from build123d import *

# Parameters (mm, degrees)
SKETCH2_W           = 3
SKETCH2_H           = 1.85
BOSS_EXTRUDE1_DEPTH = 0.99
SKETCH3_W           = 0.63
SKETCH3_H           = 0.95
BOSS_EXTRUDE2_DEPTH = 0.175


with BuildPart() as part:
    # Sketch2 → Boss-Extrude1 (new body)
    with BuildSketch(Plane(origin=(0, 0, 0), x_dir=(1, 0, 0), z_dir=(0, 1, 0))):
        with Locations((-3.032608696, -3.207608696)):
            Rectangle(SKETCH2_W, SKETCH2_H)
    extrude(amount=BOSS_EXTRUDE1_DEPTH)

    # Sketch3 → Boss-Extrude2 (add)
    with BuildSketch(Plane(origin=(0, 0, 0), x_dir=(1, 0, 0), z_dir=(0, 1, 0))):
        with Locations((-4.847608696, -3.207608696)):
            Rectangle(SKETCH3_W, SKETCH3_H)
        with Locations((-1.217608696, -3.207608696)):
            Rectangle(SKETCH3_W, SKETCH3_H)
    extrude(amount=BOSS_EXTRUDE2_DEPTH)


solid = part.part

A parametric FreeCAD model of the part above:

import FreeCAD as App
import Part
import Sketcher

V = App.Vector
Q = App.Units.Quantity


def add_polygon(sketch, points):
    """Adds a closed chain of lines whose ends are joined by coincident constraints."""
    first, n = sketch.GeometryCount, len(points)
    for a, b in zip(points, points[1:] + points[:1]):
        sketch.addGeometry(Part.LineSegment(App.Vector(*a, 0), App.Vector(*b, 0)), False)
    for i in range(n):
        sketch.addConstraint(Sketcher.Constraint("Coincident", first + i, 2, first + (i + 1) % n, 1))

doc = App.newDocument("Part")
params = doc.addObject("Spreadsheet::Sheet", "Params")
for row, (alias, value) in enumerate([
    ("sketch1_width", "3 mm"),
    ("sketch1_height", "1.85 mm"),
    ("pad1_length", "0.99 mm"),
    ("sketch2_width", "0.63 mm"),
    ("sketch2_height", "0.95 mm"),
    ("pad2_length", "0.175 mm"),
], start=1):
    params.set(f"A{row}", alias)
    params.set(f"B{row}", "=" + value)
    params.setAlias(f"B{row}", alias)

body = doc.addObject("PartDesign::Body", "Body")

# Sketch on XZ plane
sketch1 = body.newObject("Sketcher::SketchObject", "Sketch")
sketch1.AttachmentSupport = (doc.getObject("XZ_Plane"), [""])
sketch1.MapMode = "FlatFace"
add_polygon(sketch1, [(-4.5, 2.3), (-4.5, 4.1), (-1.5, 4.1), (-1.5, 2.3)])  # lines 0-3
sketch1.addConstraint([
    Sketcher.Constraint("Vertical", 0),
    Sketcher.Constraint("Horizontal", 1),
    Sketcher.Constraint("Vertical", 2),
    Sketcher.Constraint("Horizontal", 3),
    Sketcher.Constraint("DistanceX", 1, 1, 1, 2, Q("3 mm")),
    Sketcher.Constraint("DistanceY", 0, 1, 0, 2, Q("1.85 mm")),
    Sketcher.Constraint("DistanceX", 0, 2, -1, 1, Q("4.532609 mm")),
    Sketcher.Constraint("DistanceY", -1, 1, 0, 2, Q("4.132609 mm")),
])
sketch1.setExpression("Constraints[8]", "Params.sketch1_width")
sketch1.setExpression("Constraints[9]", "Params.sketch1_height")
pad1 = body.newObject("PartDesign::Pad", "Pad")
pad1.Profile = sketch1
pad1.setExpression("Length", "Params.pad1_length")
pad1.Reversed = True

# Sketch on XZ plane
sketch2 = body.newObject("Sketcher::SketchObject", "Sketch001")
sketch2.AttachmentSupport = (doc.getObject("XZ_Plane"), [""])
sketch2.MapMode = "FlatFace"
add_polygon(sketch2, [(-5.2, 2.7), (-5.2, 3.7), (-4.5, 3.7), (-4.5, 2.7)])  # lines 0-3
add_polygon(sketch2, [(-1.5, 2.7), (-1.5, 3.7), (-0.9, 3.7), (-0.9, 2.7)])  # lines 4-7
sketch2.addConstraint([
    Sketcher.Constraint("Vertical", 0),
    Sketcher.Constraint("Horizontal", 1),
    Sketcher.Constraint("Vertical", 2),
    Sketcher.Constraint("Horizontal", 3),
    Sketcher.Constraint("Vertical", 4),
    Sketcher.Constraint("Horizontal", 5),
    Sketcher.Constraint("Vertical", 6),
    Sketcher.Constraint("Horizontal", 7),
    Sketcher.Constraint("Horizontal", 1, 2, 4, 2),
    Sketcher.Constraint("Horizontal", 3, 2, 6, 2),
    Sketcher.Constraint("Equal", 3, 5),
    Sketcher.Constraint("DistanceX", 1, 2, 4, 2, Q("3 mm")),
    Sketcher.Constraint("DistanceX", 1, 1, 1, 2, Q("0.63 mm")),
    Sketcher.Constraint("DistanceY", 0, 1, 0, 2, Q("0.95 mm")),
    Sketcher.Constraint("DistanceX", 0, 2, -1, 1, Q("5.162609 mm")),
    Sketcher.Constraint("DistanceY", -1, 1, 0, 2, Q("3.682609 mm")),
])
sketch2.setExpression("Constraints[20]", "Params.sketch2_width")
sketch2.setExpression("Constraints[21]", "Params.sketch2_height")
pad2 = body.newObject("PartDesign::Pad", "Pad001")
pad2.Profile = sketch2
pad2.setExpression("Length", "Params.pad2_length")
pad2.Reversed = True

doc.recompute()
